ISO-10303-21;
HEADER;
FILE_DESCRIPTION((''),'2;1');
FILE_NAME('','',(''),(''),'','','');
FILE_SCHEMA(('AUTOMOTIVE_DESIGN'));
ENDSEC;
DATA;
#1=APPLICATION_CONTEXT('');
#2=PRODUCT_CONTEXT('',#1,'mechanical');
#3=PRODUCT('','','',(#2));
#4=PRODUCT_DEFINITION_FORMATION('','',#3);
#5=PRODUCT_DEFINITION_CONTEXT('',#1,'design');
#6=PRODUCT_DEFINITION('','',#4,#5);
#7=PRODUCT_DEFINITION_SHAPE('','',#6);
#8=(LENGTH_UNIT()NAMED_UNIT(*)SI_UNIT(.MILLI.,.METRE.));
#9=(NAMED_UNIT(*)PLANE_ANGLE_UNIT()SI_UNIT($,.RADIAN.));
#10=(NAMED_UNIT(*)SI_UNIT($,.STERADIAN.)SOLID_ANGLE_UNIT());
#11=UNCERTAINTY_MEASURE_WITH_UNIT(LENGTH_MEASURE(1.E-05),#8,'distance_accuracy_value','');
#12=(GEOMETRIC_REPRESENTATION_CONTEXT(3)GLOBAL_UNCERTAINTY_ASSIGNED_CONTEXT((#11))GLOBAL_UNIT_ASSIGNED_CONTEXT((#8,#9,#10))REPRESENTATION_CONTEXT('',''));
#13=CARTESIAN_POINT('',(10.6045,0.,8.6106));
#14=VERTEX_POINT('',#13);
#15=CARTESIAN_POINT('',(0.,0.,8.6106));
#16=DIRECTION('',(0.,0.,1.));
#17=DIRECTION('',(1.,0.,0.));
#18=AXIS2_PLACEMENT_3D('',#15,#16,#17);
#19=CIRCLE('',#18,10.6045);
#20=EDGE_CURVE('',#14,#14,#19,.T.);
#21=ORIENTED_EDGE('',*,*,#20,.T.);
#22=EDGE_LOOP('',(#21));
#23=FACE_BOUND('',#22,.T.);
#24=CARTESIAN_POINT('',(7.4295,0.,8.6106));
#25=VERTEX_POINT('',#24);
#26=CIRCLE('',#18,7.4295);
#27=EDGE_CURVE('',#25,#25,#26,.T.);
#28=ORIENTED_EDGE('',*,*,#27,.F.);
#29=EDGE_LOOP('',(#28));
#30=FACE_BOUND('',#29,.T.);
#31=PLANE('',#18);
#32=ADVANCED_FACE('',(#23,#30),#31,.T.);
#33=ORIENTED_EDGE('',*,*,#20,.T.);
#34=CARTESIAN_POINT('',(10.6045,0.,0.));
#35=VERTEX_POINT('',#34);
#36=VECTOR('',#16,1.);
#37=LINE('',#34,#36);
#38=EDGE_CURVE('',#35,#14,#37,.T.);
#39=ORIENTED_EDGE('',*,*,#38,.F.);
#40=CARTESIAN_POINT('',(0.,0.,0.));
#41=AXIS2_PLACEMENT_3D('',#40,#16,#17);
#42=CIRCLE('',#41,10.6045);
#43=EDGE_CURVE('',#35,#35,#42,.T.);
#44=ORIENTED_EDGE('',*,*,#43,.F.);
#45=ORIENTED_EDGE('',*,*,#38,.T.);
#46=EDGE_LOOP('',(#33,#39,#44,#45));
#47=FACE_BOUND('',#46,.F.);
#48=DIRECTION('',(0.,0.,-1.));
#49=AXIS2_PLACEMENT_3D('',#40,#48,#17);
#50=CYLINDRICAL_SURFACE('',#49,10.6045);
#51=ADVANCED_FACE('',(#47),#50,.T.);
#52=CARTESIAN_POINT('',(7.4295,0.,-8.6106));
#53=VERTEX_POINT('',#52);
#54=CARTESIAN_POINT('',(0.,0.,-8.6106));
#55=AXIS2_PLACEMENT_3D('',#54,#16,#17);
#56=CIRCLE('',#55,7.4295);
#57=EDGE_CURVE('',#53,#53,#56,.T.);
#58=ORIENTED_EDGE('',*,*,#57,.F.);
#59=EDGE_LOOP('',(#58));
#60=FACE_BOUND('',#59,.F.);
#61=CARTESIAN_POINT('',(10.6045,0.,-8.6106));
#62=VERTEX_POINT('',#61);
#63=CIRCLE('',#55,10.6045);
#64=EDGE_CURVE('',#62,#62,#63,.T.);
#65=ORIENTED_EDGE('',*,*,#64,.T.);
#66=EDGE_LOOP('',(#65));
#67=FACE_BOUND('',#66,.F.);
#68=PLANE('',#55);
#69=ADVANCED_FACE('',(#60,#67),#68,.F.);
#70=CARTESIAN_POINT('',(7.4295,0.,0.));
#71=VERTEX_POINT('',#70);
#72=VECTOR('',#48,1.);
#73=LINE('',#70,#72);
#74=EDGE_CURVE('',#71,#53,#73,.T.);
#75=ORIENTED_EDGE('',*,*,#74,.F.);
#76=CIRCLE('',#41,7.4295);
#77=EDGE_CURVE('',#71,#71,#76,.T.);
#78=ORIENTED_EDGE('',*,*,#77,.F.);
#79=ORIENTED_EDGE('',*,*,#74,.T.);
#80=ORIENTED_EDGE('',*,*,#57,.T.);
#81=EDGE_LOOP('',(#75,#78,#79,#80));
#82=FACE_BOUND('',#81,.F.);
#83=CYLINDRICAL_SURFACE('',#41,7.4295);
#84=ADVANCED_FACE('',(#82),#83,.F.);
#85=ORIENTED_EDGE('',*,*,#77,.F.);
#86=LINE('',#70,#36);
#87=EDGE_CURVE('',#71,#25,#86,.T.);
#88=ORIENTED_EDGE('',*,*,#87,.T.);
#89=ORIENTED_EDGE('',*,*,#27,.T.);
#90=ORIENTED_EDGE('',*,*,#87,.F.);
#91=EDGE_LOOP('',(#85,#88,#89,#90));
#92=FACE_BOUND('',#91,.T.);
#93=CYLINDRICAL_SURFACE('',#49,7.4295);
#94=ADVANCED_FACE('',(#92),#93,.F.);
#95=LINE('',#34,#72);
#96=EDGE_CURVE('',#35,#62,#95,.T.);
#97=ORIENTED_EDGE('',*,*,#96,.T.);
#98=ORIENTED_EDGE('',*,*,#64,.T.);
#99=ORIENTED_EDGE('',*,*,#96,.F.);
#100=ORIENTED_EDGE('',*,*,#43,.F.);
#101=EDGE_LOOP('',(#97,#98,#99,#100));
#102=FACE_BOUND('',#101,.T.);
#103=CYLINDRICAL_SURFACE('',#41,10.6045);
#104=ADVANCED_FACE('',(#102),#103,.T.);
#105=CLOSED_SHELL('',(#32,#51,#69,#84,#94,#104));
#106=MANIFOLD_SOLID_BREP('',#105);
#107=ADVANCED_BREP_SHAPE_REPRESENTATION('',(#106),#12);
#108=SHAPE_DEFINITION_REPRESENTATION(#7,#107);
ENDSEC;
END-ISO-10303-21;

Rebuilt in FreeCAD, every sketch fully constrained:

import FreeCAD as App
import Part
import Sketcher
from FreeCAD import Vector
Q = App.Units.Quantity

doc = App.newDocument("Part")
body = doc.addObject("PartDesign::Body", "Body")

# Sketch on XY plane
sketch1 = body.newObject("Sketcher::SketchObject", "Sketch")
sketch1.AttachmentSupport = (doc.getObject("XY_Plane"), [""])
sketch1.MapMode = "FlatFace"
sketch1.addGeometry(Part.Circle(Vector(0, 0, 0), Vector(0, 0, 1), 10.6045), False)
sketch1.addGeometry(Part.Circle(Vector(0, 0, 0), Vector(0, 0, 1), 7.4295), False)
sketch1.addConstraint(Sketcher.Constraint("Coincident", 0, 3, -1, 1))
sketch1.addConstraint(Sketcher.Constraint("Coincident", 1, 3, -1, 1))
sketch1.addConstraint(Sketcher.Constraint("Diameter", 1, Q("0.585 in")))
sketch1.addConstraint(Sketcher.Constraint("Diameter", 0, Q("0.835 in")))
pad1 = body.newObject("PartDesign::Pad", "Pad")
pad1.Profile = sketch1
pad1.Length = Q("0.678 in")
pad1.Midplane = True

doc.recompute()
